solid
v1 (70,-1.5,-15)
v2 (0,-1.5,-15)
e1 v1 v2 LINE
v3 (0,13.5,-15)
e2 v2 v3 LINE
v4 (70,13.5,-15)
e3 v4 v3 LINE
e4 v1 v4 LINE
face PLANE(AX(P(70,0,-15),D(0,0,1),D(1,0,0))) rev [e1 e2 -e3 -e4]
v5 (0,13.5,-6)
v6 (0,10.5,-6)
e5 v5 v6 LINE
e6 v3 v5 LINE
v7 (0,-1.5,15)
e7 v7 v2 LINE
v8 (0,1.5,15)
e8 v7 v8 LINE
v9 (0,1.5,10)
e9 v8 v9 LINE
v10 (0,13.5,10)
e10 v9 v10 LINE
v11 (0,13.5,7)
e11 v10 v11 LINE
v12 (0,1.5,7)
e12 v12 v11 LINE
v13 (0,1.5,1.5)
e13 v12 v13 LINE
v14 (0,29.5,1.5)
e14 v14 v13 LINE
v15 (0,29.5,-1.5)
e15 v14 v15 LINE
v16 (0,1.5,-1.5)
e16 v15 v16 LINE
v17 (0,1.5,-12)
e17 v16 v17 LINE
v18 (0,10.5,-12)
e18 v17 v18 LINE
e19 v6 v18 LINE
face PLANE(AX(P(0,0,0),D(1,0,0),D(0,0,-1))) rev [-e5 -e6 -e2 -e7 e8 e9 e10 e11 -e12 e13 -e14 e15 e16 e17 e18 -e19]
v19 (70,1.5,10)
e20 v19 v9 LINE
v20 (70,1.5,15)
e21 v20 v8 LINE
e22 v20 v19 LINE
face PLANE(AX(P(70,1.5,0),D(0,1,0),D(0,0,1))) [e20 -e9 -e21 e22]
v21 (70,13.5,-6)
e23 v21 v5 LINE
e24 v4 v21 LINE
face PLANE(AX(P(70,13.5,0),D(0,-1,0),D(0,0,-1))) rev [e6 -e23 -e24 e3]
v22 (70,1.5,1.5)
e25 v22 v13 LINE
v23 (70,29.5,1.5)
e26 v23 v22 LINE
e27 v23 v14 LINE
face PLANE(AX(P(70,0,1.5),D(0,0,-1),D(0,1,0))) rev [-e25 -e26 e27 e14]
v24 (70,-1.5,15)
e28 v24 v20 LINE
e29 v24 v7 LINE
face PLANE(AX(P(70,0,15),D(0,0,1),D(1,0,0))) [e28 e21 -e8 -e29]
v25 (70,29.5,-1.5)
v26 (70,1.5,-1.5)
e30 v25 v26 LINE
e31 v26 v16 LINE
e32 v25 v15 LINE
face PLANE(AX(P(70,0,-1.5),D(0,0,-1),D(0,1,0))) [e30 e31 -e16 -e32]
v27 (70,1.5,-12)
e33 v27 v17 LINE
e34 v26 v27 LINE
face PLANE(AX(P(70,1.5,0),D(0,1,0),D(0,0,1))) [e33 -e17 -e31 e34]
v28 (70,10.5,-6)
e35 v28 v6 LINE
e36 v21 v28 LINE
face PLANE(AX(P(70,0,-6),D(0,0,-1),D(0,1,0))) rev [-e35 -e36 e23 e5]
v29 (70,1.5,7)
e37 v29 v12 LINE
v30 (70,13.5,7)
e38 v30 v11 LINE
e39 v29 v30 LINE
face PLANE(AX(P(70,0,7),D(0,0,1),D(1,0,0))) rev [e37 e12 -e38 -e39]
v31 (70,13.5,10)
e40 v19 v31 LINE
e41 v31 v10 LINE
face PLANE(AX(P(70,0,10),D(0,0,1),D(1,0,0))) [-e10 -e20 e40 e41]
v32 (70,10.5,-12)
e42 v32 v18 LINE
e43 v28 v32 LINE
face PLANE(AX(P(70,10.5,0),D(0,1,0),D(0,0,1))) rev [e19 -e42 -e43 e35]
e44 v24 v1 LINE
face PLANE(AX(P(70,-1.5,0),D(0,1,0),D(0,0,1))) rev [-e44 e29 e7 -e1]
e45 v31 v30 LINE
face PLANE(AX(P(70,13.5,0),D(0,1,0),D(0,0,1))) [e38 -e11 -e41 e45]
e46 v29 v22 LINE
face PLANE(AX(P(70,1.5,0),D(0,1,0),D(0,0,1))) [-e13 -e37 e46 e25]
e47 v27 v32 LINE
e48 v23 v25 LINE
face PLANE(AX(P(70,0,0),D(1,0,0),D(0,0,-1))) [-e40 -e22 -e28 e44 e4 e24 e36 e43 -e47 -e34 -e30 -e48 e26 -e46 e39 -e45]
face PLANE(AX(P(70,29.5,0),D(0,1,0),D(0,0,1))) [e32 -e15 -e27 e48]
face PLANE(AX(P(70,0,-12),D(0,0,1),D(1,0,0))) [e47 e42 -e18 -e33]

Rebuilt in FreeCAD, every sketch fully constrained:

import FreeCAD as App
import Part
import Sketcher

doc = App.newDocument("Part")
params = doc.addObject("Spreadsheet::Sheet", "Params")
for row, (alias, value) in enumerate([
    ("sketch1_width", "12 mm"),
    ("sketch1_width2", "3 mm"),
    ("sketch1_width3", "28 mm"),
    ("sketch1_height", "5 mm"),
    ("sketch1_height2", "30 mm"),
    ("pad1_length", "70 mm"),
], start=1):
    params.set(f"A{row}", alias)
    params.set(f"B{row}", "=" + value)
    params.setAlias(f"B{row}", alias)

body = doc.addObject("PartDesign::Body", "Body")

sketch1 = body.newObject("Sketcher::SketchObject", "Sketch")
sketch1.AttachmentSupport = (doc.getObject("YZ_Plane"), [""])
sketch1.MapMode = "FlatFace"
sketch1.addGeometry(Part.LineSegment(App.Vector(13.5, 10, 0), App.Vector(1.5, 10, 0)), False)
sketch1.addGeometry(Part.LineSegment(App.Vector(1.5, 10, 0), App.Vector(1.5, 15, 0)), False)
sketch1.addGeometry(Part.LineSegment(App.Vector(1.5, 15, 0), App.Vector(-1.5, 15, 0)), False)
sketch1.addGeometry(Part.LineSegment(App.Vector(-1.5, 15, 0), App.Vector(-1.5, -15, 0)), False)
sketch1.addGeometry(Part.LineSegment(App.Vector(-1.5, -15, 0), App.Vector(13.5, -15, 0)), False)
sketch1.addGeometry(Part.LineSegment(App.Vector(13.5, -15, 0), App.Vector(13.5, -6, 0)), False)
sketch1.addGeometry(Part.LineSegment(App.Vector(13.5, -6, 0), App.Vector(10.5, -6, 0)), False)
sketch1.addGeometry(Part.LineSegment(App.Vector(10.5, -6, 0), App.Vector(10.5, -12, 0)), False)
sketch1.addGeometry(Part.LineSegment(App.Vector(10.5, -12, 0), App.Vector(1.5, -12, 0)), False)
sketch1.addGeometry(Part.LineSegment(App.Vector(1.5, -12, 0), App.Vector(1.5, -1.5, 0)), False)
sketch1.addGeometry(Part.LineSegment(App.Vector(1.5, -1.5, 0), App.Vector(29.5, -1.5, 0)), False)
sketch1.addGeometry(Part.LineSegment(App.Vector(29.5, -1.5, 0), App.Vector(29.5, 1.5, 0)), False)
sketch1.addGeometry(Part.LineSegment(App.Vector(29.5, 1.5, 0), App.Vector(1.5, 1.5, 0)), False)
sketch1.addGeometry(Part.LineSegment(App.Vector(1.5, 1.5, 0), App.Vector(1.5, 7, 0)), False)
sketch1.addGeometry(Part.LineSegment(App.Vector(1.5, 7, 0), App.Vector(13.5, 7, 0)), False)
sketch1.addGeometry(Part.LineSegment(App.Vector(13.5, 7, 0), App.Vector(13.5, 10, 0)), False)
sketch1.addConstraint(Sketcher.Constraint("Coincident", 0, 2, 1, 1))
sketch1.addConstraint(Sketcher.Constraint("Coincident", 1, 2, 2, 1))
sketch1.addConstraint(Sketcher.Constraint("Coincident", 2, 2, 3, 1))
sketch1.addConstraint(Sketcher.Constraint("Coincident", 3, 2, 4, 1))
sketch1.addConstraint(Sketcher.Constraint("Coincident", 4, 2, 5, 1))
sketch1.addConstraint(Sketcher.Constraint("Coincident", 5, 2, 6, 1))
sketch1.addConstraint(Sketcher.Constraint("Coincident", 6, 2, 7, 1))
sketch1.addConstraint(Sketcher.Constraint("Coincident", 7, 2, 8, 1))
sketch1.addConstraint(Sketcher.Constraint("Coincident", 8, 2, 9, 1))
sketch1.addConstraint(Sketcher.Constraint("Coincident", 9, 2, 10, 1))
sketch1.addConstraint(Sketcher.Constraint("Coincident", 10, 2, 11, 1))
sketch1.addConstraint(Sketcher.Constraint("Coincident", 11, 2, 12, 1))
sketch1.addConstraint(Sketcher.Constraint("Coincident", 12, 2, 13, 1))
sketch1.addConstraint(Sketcher.Constraint("Coincident", 13, 2, 14, 1))
sketch1.addConstraint(Sketcher.Constraint("Coincident", 14, 2, 15, 1))
sketch1.addConstraint(Sketcher.Constraint("Coincident", 15, 2, 0, 1))
sketch1.addConstraint(Sketcher.Constraint("Horizontal", 0))
sketch1.addConstraint(Sketcher.Constraint("Vertical", 1))
sketch1.addConstraint(Sketcher.Constraint("Horizontal", 2))
sketch1.addConstraint(Sketcher.Constraint("Vertical", 3))
sketch1.addConstraint(Sketcher.Constraint("Horizontal", 4))
sketch1.addConstraint(Sketcher.Constraint("Vertical", 5))
sketch1.addConstraint(Sketcher.Constraint("Horizontal", 6))
sketch1.addConstraint(Sketcher.Constraint("Vertical", 7))
sketch1.addConstraint(Sketcher.Constraint("Horizontal", 8))
sketch1.addConstraint(Sketcher.Constraint("Vertical", 9))
sketch1.addConstraint(Sketcher.Constraint("Horizontal", 10))
sketch1.addConstraint(Sketcher.Constraint("Vertical", 11))
sketch1.addConstraint(Sketcher.Constraint("Horizontal", 12))
sketch1.addConstraint(Sketcher.Constraint("Vertical", 13))
sketch1.addConstraint(Sketcher.Constraint("Horizontal", 14))
sketch1.addConstraint(Sketcher.Constraint("Vertical", 15))
sketch1.addConstraint(Sketcher.Constraint("Symmetric", 1, 2, 3, 2, -1, 1))
sketch1.addConstraint(Sketcher.Constraint("Symmetric", 9, 2, 12, 2, -1))
sketch1.addConstraint(Sketcher.Constraint("Vertical", 1, 2, 8, 2))
sketch1.addConstraint(Sketcher.Constraint("Vertical", 5, 2, 14, 2))
sketch1.addConstraint(Sketcher.Constraint("Equal", 2, 6))
sketch1.addConstraint(Sketcher.Constraint("Equal", 8, 5))
sketch1.addConstraint(Sketcher.Constraint("Equal", 6, 11))
sketch1.addConstraint(Sketcher.Constraint("Equal", 11, 15))
sketch1.addConstraint(Sketcher.Constraint("DistanceX", 0, 2, 0, 1, 12.0))
sketch1.addConstraint(Sketcher.Constraint("DistanceX", 2, 2, 2, 1, 3.0))
sketch1.addConstraint(Sketcher.Constraint("DistanceX", 10, 1, 10, 2, 28.0))
sketch1.addConstraint(Sketcher.Constraint("DistanceY", 1, 1, 1, 2, 5.0))
sketch1.addConstraint(Sketcher.Constraint("DistanceY", 3, 2, 3, 1, 30.0))
sketch1.addConstraint(Sketcher.Constraint("DistanceY", 7, 2, 7, 1, 6.0))
sketch1.setExpression("Constraints[40]", "Params.sketch1_width")
sketch1.setExpression("Constraints[41]", "Params.sketch1_width2")
sketch1.setExpression("Constraints[42]", "Params.sketch1_width3")
sketch1.setExpression("Constraints[43]", "Params.sketch1_height")
sketch1.setExpression("Constraints[44]", "Params.sketch1_height2")
pad1 = body.newObject("PartDesign::Pad", "Pad")
pad1.Profile = sketch1
pad1.setExpression("Length", "Params.pad1_length")

doc.recompute()
